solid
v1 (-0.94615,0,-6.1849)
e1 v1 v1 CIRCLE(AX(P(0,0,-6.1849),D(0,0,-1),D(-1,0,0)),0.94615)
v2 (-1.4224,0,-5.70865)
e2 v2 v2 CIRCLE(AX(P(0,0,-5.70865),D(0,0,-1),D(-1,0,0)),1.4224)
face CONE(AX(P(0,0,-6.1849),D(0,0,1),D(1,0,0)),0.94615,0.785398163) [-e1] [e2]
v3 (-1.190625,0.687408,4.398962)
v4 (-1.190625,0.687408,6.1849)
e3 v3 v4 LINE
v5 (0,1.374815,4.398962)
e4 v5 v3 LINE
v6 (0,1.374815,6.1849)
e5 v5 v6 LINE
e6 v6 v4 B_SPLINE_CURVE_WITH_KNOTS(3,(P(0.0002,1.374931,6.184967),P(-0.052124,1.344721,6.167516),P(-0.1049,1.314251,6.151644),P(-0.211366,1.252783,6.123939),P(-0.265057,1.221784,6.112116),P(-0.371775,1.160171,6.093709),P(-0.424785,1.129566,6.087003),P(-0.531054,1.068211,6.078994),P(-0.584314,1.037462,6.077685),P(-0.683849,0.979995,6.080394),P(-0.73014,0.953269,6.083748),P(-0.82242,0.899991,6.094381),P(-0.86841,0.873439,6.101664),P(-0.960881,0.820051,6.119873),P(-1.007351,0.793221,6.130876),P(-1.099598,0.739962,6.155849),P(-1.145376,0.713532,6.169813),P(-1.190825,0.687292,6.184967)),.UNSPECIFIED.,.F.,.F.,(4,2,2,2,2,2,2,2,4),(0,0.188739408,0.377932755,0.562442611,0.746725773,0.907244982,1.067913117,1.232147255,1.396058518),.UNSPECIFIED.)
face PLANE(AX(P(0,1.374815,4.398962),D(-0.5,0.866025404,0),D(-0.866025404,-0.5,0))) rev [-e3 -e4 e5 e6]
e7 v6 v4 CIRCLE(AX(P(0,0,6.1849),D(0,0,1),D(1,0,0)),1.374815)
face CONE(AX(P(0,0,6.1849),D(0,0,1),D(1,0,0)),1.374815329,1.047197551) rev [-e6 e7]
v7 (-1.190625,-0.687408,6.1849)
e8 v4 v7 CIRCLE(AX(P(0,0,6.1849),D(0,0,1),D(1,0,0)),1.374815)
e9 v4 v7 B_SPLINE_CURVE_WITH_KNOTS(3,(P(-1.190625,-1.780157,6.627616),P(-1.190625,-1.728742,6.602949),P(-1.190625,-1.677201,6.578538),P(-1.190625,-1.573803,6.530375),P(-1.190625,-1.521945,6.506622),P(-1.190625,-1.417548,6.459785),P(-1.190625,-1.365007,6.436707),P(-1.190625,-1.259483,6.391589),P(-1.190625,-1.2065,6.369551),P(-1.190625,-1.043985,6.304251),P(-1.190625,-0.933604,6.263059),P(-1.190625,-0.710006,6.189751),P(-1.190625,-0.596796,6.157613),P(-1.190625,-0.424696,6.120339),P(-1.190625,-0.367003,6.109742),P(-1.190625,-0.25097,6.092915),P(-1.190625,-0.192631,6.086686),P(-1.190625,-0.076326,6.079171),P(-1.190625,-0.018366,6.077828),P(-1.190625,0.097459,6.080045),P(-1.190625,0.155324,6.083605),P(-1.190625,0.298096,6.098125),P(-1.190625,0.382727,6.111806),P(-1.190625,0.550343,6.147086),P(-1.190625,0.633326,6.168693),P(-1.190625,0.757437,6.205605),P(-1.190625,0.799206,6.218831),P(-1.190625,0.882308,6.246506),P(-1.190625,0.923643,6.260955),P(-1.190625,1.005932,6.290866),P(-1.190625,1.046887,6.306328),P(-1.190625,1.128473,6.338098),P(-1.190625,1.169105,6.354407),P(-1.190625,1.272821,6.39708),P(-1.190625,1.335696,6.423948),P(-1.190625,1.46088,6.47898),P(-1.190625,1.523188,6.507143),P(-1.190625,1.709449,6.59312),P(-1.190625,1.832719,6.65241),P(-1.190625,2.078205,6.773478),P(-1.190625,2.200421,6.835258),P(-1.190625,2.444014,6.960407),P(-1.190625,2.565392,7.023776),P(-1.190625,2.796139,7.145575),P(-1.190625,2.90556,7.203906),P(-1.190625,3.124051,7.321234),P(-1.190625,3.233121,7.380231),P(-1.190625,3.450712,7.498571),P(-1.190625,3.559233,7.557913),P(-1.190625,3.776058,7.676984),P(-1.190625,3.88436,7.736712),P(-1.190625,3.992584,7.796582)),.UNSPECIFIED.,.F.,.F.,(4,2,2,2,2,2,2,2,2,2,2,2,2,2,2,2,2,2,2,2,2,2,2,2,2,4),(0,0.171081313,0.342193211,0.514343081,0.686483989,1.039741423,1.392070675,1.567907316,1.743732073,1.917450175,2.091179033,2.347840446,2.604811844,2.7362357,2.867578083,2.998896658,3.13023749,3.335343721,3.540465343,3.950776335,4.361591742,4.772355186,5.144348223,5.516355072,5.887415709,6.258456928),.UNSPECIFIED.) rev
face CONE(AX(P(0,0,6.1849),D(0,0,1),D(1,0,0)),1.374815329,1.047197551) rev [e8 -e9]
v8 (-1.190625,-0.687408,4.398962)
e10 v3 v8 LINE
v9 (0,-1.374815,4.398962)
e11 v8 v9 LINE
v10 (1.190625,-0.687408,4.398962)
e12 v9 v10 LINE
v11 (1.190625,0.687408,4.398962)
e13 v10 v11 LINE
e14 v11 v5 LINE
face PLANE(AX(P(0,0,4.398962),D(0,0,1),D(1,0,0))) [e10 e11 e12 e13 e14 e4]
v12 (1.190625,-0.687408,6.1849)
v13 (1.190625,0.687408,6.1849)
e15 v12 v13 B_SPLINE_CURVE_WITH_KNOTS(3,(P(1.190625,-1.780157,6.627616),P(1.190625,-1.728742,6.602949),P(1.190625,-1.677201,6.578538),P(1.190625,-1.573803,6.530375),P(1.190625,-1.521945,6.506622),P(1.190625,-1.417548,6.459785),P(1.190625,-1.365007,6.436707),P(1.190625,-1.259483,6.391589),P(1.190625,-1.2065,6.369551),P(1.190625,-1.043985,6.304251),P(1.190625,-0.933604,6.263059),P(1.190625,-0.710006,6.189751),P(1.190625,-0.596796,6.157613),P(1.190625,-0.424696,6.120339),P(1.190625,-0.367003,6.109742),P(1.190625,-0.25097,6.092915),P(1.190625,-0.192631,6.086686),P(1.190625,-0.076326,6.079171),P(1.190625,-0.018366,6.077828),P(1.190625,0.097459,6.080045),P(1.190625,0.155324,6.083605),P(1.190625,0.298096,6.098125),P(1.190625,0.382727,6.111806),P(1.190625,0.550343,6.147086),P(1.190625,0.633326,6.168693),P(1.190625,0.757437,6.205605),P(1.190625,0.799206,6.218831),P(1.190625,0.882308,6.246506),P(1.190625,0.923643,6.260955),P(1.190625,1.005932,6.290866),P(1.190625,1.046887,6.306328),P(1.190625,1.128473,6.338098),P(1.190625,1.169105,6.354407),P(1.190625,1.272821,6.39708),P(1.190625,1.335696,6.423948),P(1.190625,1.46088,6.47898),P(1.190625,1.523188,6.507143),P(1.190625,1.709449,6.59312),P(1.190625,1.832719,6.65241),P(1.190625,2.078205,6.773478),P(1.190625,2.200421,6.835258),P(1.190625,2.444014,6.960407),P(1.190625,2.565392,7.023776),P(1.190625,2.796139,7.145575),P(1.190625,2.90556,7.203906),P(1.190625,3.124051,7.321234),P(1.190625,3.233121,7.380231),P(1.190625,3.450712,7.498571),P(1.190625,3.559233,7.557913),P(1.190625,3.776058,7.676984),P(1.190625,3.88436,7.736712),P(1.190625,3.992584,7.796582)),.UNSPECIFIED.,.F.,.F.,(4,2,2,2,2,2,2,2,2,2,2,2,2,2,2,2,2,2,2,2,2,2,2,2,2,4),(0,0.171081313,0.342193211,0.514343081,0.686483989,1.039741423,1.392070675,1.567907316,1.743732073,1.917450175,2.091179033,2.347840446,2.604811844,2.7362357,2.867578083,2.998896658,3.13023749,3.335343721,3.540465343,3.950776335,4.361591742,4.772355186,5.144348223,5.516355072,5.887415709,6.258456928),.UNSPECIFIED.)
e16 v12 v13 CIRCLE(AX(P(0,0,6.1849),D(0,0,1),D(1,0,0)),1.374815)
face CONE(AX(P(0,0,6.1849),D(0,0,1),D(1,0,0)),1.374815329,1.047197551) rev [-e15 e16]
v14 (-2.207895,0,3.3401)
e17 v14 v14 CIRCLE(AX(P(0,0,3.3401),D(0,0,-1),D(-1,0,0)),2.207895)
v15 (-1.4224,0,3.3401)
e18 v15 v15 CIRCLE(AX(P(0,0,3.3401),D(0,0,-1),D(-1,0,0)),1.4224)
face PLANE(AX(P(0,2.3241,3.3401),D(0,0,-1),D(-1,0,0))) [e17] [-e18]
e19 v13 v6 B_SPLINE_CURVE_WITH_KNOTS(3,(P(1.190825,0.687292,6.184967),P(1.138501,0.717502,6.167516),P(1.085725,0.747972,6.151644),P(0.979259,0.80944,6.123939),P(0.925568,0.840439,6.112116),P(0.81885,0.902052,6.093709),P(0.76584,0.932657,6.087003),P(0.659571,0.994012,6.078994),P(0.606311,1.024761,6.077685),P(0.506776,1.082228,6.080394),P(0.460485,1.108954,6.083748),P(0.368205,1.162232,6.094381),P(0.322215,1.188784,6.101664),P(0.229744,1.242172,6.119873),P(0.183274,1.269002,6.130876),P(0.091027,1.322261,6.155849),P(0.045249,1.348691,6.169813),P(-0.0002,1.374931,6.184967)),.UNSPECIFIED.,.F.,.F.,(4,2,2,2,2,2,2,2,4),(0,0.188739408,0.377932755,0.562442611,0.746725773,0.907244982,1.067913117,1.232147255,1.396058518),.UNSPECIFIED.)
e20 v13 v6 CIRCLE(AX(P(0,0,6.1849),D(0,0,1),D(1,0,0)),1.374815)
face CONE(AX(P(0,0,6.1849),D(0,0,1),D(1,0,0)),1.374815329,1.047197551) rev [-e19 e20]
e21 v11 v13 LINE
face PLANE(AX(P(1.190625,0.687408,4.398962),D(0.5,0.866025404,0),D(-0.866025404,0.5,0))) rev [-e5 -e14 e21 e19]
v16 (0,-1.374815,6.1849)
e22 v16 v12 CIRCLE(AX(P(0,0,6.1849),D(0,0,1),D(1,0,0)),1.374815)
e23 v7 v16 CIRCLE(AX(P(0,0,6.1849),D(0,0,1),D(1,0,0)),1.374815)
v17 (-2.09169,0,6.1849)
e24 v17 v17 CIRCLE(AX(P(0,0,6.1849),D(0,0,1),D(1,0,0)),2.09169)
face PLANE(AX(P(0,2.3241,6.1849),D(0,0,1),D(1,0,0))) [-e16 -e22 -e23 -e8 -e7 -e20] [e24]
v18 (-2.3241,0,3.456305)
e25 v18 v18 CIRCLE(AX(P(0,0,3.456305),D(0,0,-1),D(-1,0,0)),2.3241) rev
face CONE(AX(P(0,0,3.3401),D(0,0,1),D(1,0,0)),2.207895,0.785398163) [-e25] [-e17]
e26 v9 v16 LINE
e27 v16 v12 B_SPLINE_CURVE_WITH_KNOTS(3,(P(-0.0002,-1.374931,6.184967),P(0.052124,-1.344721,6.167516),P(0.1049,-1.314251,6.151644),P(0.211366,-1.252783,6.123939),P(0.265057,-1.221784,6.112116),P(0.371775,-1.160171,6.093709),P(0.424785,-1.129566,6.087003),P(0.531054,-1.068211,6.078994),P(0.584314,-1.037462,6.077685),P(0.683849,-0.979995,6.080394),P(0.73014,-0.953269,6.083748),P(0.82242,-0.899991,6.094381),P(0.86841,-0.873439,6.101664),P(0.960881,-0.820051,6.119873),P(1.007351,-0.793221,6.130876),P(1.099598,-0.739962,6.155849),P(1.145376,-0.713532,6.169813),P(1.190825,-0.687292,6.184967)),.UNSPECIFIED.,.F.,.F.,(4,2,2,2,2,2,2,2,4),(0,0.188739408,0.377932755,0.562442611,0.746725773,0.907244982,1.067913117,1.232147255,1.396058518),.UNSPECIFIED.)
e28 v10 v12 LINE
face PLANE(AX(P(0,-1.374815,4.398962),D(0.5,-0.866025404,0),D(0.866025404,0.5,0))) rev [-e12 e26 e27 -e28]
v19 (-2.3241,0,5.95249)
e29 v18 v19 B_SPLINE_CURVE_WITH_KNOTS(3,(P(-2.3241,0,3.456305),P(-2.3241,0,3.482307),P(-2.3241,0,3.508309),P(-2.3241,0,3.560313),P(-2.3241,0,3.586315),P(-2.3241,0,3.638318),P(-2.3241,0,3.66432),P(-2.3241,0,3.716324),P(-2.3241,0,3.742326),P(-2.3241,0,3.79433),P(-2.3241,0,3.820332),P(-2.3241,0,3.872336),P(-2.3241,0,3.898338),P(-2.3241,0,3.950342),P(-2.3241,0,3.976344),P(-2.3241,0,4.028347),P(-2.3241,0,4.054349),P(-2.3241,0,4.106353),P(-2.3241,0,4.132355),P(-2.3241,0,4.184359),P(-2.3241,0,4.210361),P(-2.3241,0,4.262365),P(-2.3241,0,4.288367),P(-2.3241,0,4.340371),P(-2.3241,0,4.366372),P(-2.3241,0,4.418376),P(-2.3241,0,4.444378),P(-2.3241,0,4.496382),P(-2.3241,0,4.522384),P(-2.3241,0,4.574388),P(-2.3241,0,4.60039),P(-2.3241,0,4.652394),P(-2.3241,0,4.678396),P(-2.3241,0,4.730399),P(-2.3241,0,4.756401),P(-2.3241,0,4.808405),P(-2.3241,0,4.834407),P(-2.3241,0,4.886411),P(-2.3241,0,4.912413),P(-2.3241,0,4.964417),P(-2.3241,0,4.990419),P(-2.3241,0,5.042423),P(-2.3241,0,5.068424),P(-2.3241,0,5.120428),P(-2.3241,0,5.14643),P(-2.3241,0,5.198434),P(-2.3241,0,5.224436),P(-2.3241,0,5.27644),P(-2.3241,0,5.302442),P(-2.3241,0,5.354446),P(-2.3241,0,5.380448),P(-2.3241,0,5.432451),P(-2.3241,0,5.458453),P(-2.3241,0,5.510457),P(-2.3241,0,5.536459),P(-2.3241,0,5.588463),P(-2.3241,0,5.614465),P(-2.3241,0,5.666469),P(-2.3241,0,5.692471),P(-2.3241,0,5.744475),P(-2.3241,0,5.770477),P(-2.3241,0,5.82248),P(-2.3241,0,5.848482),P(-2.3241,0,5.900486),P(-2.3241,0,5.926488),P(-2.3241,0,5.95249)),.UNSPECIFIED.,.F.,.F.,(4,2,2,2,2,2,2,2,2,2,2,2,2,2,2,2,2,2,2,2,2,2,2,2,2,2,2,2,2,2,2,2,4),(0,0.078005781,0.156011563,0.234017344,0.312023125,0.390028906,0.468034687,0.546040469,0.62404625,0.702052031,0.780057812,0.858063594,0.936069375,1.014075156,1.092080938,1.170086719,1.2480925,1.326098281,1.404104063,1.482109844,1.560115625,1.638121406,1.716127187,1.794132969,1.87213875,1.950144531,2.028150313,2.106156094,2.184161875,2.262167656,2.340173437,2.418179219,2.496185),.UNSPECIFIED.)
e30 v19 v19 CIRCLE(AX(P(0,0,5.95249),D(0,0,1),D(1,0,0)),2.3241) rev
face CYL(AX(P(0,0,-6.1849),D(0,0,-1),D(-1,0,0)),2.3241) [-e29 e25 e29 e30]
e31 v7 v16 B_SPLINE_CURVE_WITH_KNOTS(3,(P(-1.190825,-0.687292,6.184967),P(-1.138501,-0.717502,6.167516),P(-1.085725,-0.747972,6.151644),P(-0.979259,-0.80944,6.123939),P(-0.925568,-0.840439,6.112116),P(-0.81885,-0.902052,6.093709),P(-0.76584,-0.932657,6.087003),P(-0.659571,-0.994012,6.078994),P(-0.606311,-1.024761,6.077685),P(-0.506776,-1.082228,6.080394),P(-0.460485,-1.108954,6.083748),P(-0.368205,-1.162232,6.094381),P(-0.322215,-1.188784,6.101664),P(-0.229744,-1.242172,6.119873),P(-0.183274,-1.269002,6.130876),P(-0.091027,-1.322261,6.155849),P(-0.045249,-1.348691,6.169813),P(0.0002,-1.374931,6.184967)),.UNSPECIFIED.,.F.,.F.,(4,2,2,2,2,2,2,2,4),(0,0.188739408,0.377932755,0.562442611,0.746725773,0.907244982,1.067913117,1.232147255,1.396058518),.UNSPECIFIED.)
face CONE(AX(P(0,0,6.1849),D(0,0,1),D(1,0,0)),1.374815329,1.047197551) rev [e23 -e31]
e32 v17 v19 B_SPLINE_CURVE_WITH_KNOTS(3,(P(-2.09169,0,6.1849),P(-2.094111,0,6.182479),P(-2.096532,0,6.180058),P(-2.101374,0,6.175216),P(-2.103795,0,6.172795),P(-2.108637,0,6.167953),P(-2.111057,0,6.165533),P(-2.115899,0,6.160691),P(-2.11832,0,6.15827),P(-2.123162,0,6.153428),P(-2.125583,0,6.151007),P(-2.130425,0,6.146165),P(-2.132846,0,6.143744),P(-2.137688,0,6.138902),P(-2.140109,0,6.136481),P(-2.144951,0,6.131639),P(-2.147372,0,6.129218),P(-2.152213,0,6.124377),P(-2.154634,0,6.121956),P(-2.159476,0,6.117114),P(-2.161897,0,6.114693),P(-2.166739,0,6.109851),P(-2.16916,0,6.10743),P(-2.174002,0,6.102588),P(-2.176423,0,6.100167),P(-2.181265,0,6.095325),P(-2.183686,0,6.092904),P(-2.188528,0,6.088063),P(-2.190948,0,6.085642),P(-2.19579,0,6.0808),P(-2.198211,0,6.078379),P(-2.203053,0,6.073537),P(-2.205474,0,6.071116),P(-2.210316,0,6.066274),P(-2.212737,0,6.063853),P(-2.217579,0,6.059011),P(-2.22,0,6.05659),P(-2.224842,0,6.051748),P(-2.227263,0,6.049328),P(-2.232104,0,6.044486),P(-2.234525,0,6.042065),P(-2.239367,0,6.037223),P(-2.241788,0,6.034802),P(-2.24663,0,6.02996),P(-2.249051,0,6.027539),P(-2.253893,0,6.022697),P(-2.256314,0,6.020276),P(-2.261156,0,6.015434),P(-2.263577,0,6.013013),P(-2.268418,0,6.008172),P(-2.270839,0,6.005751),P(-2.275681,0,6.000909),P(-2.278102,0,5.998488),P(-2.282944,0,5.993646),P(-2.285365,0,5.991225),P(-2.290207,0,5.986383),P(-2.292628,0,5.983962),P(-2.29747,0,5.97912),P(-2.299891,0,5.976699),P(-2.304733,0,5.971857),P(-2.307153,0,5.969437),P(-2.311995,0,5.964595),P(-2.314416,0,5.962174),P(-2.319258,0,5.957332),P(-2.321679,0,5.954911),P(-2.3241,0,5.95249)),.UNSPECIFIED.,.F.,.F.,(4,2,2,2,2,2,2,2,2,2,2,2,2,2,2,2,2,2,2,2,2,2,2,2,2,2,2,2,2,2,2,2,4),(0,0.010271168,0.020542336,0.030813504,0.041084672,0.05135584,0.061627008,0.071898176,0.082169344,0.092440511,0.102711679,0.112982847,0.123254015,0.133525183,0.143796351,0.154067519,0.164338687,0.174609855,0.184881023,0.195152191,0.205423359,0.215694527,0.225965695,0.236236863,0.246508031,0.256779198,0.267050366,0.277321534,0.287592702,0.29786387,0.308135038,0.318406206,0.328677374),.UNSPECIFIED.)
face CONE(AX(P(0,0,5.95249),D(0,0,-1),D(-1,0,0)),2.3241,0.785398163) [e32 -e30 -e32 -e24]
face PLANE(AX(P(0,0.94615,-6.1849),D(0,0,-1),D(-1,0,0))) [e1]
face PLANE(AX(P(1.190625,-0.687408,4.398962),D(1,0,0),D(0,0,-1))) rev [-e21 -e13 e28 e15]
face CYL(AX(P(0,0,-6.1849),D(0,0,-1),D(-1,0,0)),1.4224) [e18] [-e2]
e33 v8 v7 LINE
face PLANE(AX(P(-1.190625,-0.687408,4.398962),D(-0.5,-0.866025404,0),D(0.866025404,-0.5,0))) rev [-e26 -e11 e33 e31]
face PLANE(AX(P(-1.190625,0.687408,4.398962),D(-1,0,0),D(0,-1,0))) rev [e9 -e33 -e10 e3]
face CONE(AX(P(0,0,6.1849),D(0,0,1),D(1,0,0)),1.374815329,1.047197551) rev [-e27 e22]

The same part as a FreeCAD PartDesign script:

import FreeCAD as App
import Part
import Sketcher
from FreeCAD import Vector
Q = App.Units.Quantity


def edges_at(feature, points):
    """Names of the edges that pass closest to the given points."""
    edges = feature.Shape.Edges
    near = lambda p: min(range(len(edges)), key=lambda i: edges[i].distToShape(Part.Vertex(*p))[0])
    return sorted({f"Edge{near(p) + 1}" for p in points})


def add_polygon(sketch, points):
    """Adds a closed chain of lines whose ends are joined by coincident constraints."""
    first, n = sketch.GeometryCount, len(points)
    for a, b in zip(points, points[1:] + points[:1]):
        sketch.addGeometry(Part.LineSegment(App.Vector(*a, 0), App.Vector(*b, 0)), False)
    for i in range(n):
        sketch.addConstraint(Sketcher.Constraint("Coincident", first + i, 2, first + (i + 1) % n, 1))

doc = App.newDocument("Part")
body = doc.addObject("PartDesign::Body", "Body")

# Sketch on YZ plane
sketch1 = body.newObject("Sketcher::SketchObject", "Sketch")
sketch1.AttachmentSupport = (doc.getObject("YZ_Plane"), [""])
sketch1.MapMode = "FlatFace"
add_polygon(sketch1, [(0.9, -6.2), (1.4, -5.7), (1.4, 3.3), (2.3, 3.3), (2.3, 6.2), (0, 6.2), (0, -6.2)])  # lines 0-6
sketch1.addConstraint(Sketcher.Constraint("Vertical", 1))
sketch1.addConstraint(Sketcher.Constraint("Horizontal", 2))
sketch1.addConstraint(Sketcher.Constraint("Vertical", 3))
sketch1.addConstraint(Sketcher.Constraint("Horizontal", 4))
sketch1.addConstraint(Sketcher.Constraint("Vertical", 5))
sketch1.addConstraint(Sketcher.Constraint("Horizontal", 6))
sketch1.addConstraint(Sketcher.Constraint("Symmetric", 4, 2, 5, 2, -1, 1))
sketch1.addConstraint(Sketcher.Constraint("Angle", 0, Q("45 deg")))
sketch1.addConstraint(Sketcher.Constraint("DistanceY", 3, 1, 3, 2, Q("0.112 in")))
sketch1.addConstraint(Sketcher.Constraint("DistanceY", 5, 2, 5, 1, Q("0.487 in")))
sketch1.addConstraint(Sketcher.Constraint("DistanceX", 2, 1, 2, 2, Q("0.0355 in")))
sketch1.addConstraint(Sketcher.Constraint("DistanceX", 4, 2, 4, 1, Q("0.0915 in")))
sketch1.addConstraint(Sketcher.Constraint("DistanceX", 6, 1, 6, 2, 0.94615))
revolution = body.newObject("PartDesign::Revolution", "Revolution")
revolution.Profile = sketch1
revolution.ReferenceAxis = (sketch1, ["V_Axis"])
revolution.Angle = 360

# Sketch on XY plane
sketch2 = body.newObject("Sketcher::SketchObject", "Sketch001")
sketch2.AttachmentSupport = (doc.getObject("XY_Plane"), [""])
sketch2.MapMode = "FlatFace"
sketch2.AttachmentOffset = App.Placement(Vector(0, 0, 0.2435 * 25.4), App.Rotation())
add_polygon(sketch2, [(0, 1.4), (-1.2, 0.7), (-1.2, -0.7), (0, -1.4), (1.2, -0.7), (1.2, 0.7)])  # lines 0-5
sketch2.addConstraint(Sketcher.Constraint("Vertical", 1))
sketch2.addConstraint(Sketcher.Constraint("Vertical", 4))
sketch2.addConstraint(Sketcher.Constraint("Symmetric", 0, 2, 3, 2, -1, 1))
sketch2.addConstraint(Sketcher.Constraint("Symmetric", 2, 2, 5, 2, -1, 1))
sketch2.addConstraint(Sketcher.Constraint("PointOnObject", 2, 2, -2))
sketch2.addConstraint(Sketcher.Constraint("Parallel", 2, 5))
sketch2.addConstraint(Sketcher.Constraint("Horizontal", 1, 2, 3, 2))
sketch2.addConstraint(Sketcher.Constraint("Angle", 0, Q("-150 deg")))
sketch2.addConstraint(Sketcher.Constraint("DistanceX", 0, 2, -1, 1, Q("0.046875 in")))
sketch2.addConstraint(Sketcher.Constraint("DistanceY", 1, 2, 1, 1, 1.374815))
pocket1 = body.newObject("PartDesign::Pocket", "Pocket")
pocket1.Profile = sketch2
pocket1.Length = 1.785937

# Sketch on YZ plane
sketch3 = body.newObject("Sketcher::SketchObject", "Sketch002")
sketch3.AttachmentSupport = (doc.getObject("YZ_Plane"), [""])
sketch3.MapMode = "FlatFace"
add_polygon(sketch3, [(0, 6.2), (-1.4, 6.2), (0, 5.4)])  # lines 0-2
sketch3.addConstraint(Sketcher.Constraint("Horizontal", 0))
sketch3.addConstraint(Sketcher.Constraint("Vertical", 2))
sketch3.addConstraint(Sketcher.Constraint("PointOnObject", 1, 2, -2))
sketch3.addConstraint(Sketcher.Constraint("Angle", 1, Q("-30 deg")))
sketch3.addConstraint(Sketcher.Constraint("DistanceY", 2, 1, 2, 2, Q("0.03125 in")))
sketch3.addConstraint(Sketcher.Constraint("DistanceY", -1, 1, 0, 2, Q("0.2435 in")))
groove = body.newObject("PartDesign::Groove", "Groove")
groove.Profile = sketch3
groove.ReferenceAxis = (sketch3, ["V_Axis"])
groove.Angle = 360
doc.recompute()

chamfer = body.newObject("PartDesign::Chamfer", "Chamfer")
chamfer.Base = (groove, edges_at(groove, [(2.324, 0, 6.185)]))
chamfer.Size = 0.23241
doc.recompute()

chamfer2 = body.newObject("PartDesign::Chamfer", "Chamfer001")
chamfer2.Base = (chamfer, edges_at(chamfer, [(2.324, 0, 3.34)]))
chamfer2.Size = 0.116205

doc.recompute()
